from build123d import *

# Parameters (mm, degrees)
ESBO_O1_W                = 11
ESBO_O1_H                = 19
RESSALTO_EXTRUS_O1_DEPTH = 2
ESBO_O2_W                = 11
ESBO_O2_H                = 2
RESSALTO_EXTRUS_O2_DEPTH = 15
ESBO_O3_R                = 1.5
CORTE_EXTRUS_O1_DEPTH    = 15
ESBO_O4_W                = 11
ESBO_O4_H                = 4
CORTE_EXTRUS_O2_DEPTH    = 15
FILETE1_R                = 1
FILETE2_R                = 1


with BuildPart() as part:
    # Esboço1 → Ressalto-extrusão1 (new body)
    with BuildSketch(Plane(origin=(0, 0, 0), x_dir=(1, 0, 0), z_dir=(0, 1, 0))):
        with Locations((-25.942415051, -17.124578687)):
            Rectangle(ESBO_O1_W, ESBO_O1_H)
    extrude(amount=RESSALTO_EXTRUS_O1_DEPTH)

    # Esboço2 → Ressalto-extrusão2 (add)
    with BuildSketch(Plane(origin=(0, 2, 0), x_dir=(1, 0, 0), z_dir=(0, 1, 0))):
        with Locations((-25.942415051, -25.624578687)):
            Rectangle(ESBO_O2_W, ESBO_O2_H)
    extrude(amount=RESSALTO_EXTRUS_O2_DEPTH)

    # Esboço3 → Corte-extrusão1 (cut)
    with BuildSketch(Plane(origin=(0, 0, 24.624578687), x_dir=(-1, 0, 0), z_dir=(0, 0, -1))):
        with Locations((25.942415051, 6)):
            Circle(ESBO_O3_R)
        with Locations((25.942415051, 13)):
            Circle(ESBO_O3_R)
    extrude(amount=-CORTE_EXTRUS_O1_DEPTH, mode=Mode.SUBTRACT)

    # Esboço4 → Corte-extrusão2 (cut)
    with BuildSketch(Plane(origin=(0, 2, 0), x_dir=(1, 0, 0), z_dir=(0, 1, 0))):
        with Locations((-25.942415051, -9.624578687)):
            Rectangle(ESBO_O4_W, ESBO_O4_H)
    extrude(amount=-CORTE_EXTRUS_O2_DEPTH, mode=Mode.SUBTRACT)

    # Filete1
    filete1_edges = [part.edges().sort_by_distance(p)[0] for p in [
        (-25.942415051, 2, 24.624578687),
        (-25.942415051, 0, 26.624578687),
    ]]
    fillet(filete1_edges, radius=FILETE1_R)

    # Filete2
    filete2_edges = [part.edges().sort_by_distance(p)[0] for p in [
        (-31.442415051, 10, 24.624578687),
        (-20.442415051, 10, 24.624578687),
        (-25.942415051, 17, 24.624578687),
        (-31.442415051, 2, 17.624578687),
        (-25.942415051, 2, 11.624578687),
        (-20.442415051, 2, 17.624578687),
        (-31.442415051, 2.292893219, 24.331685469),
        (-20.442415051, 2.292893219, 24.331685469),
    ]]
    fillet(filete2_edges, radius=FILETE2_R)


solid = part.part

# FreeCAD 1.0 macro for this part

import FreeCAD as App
import Part
import Sketcher

V = App.Vector


def edges_at(feature, points):
    """Names of the edges that pass closest to the given points."""
    edges = feature.Shape.Edges
    near = lambda p: min(range(len(edges)), key=lambda i: edges[i].distToShape(Part.Vertex(*p))[0])
    return sorted({f"Edge{near(p) + 1}" for p in points})

doc = App.newDocument("Part")
body = doc.addObject("PartDesign::Body", "Body")

# Sketch on XZ plane
sketch1 = body.newObject("Sketcher::SketchObject", "Sketch")
sketch1.AttachmentSupport = (doc.getObject("XZ_Plane"), [""])
sketch1.MapMode = "FlatFace"
sketch1.addGeometry([
    Part.LineSegment(V(-31, 8, 0), V(-31, 27, 0)),
    Part.LineSegment(V(-31, 27, 0), V(-20, 27, 0)),
    Part.LineSegment(V(-20, 27, 0), V(-20, 8, 0)),
    Part.LineSegment(V(-20, 8, 0), V(-31, 8, 0)),
], False)
sketch1.addConstraint([
    Sketcher.Constraint("Coincident", 0, 2, 1, 1),
    Sketcher.Constraint("Coincident", 1, 2, 2, 1),
    Sketcher.Constraint("Coincident", 2, 2, 3, 1),
    Sketcher.Constraint("Coincident", 3, 2, 0, 1),
    Sketcher.Constraint("Vertical", 0),
    Sketcher.Constraint("Horizontal", 1),
    Sketcher.Constraint("Vertical", 2),
    Sketcher.Constraint("Horizontal", 3),
    Sketcher.Constraint("DistanceX", 1, 1, 1, 2, 11.0),
    Sketcher.Constraint("DistanceY", 0, 1, 0, 2, 19.0),
    Sketcher.Constraint("DistanceY", -1, 1, 0, 2, 26.624579),
    Sketcher.Constraint("DistanceX", 0, 2, -1, 1, 31.442415),
])
pad1 = body.newObject("PartDesign::Pad", "Pad")
pad1.Profile = sketch1
pad1.Length = 2
pad1.Reversed = True

# Sketch on XZ plane
sketch2 = body.newObject("Sketcher::SketchObject", "Sketch001")
sketch2.AttachmentSupport = (doc.getObject("XZ_Plane"), [""])
sketch2.MapMode = "FlatFace"
sketch2.AttachmentOffset = App.Placement(V(0, 0, -2), App.Rotation())
sketch2.addGeometry([
    Part.LineSegment(V(-31.4, 24.6, 0), V(-31.4, 26.6, 0)),
    Part.LineSegment(V(-31.4, 26.6, 0), V(-20.4, 26.6, 0)),
    Part.LineSegment(V(-20.4, 26.6, 0), V(-20.4, 24.6, 0)),
    Part.LineSegment(V(-20.4, 24.6, 0), V(-31.4, 24.6, 0)),
], False)
sketch2.addConstraint([
    Sketcher.Constraint("Coincident", 0, 2, 1, 1),
    Sketcher.Constraint("Coincident", 1, 2, 2, 1),
    Sketcher.Constraint("Coincident", 2, 2, 3, 1),
    Sketcher.Constraint("Coincident", 3, 2, 0, 1),
    Sketcher.Constraint("Vertical", 0),
    Sketcher.Constraint("Horizontal", 1),
    Sketcher.Constraint("Vertical", 2),
    Sketcher.Constraint("Horizontal", 3),
    Sketcher.Constraint("DistanceX", 1, 1, 1, 2, 11.0),
    Sketcher.Constraint("DistanceY", 0, 1, 0, 2, 2.0),
    Sketcher.Constraint("DistanceY", -1, 1, 0, 2, 26.624579),
    Sketcher.Constraint("DistanceX", 0, 2, -1, 1, 31.442415),
])
pad2 = body.newObject("PartDesign::Pad", "Pad001")
pad2.Profile = sketch2
pad2.Length = 15
pad2.Reversed = True

# Sketch on XY plane
sketch3 = body.newObject("Sketcher::SketchObject", "Sketch002")
sketch3.AttachmentSupport = (doc.getObject("XY_Plane"), [""])
sketch3.MapMode = "FlatFace"
sketch3.AttachmentOffset = App.Placement(V(0, 0, 24.624579), App.Rotation())
sketch3.addGeometry([
    Part.Circle(V(-25.9, 6, 0), V(0, 0, 1), 1.5),
    Part.Circle(V(-25.9, 13, 0), V(0, 0, 1), 1.5),
], False)
sketch3.addConstraint([
    Sketcher.Constraint("Equal", 0, 1),
    Sketcher.Constraint("Vertical", 0, 3, 1, 3),
    Sketcher.Constraint("Diameter", 0, 3.0),
    Sketcher.Constraint("DistanceY", -1, 1, 0, 3, 6.0),
    Sketcher.Constraint("DistanceY", -1, 1, 1, 3, 13.0),
    Sketcher.Constraint("DistanceX", 0, 3, -1, 1, 25.942415),
])
pocket1 = body.newObject("PartDesign::Pocket", "Pocket")
pocket1.Profile = sketch3
pocket1.Length = 15
pocket1.Reversed = True

# Sketch on XZ plane
sketch4 = body.newObject("Sketcher::SketchObject", "Sketch003")
sketch4.AttachmentSupport = (doc.getObject("XZ_Plane"), [""])
sketch4.MapMode = "FlatFace"
sketch4.AttachmentOffset = App.Placement(V(0, 0, -2), App.Rotation())
sketch4.addGeometry([
    Part.LineSegment(V(-31.4, 7.6, 0), V(-31.4, 11.6, 0)),
    Part.LineSegment(V(-31.4, 11.6, 0), V(-20.4, 11.6, 0)),
    Part.LineSegment(V(-20.4, 11.6, 0), V(-20.4, 7.6, 0)),
    Part.LineSegment(V(-20.4, 7.6, 0), V(-31.4, 7.6, 0)),
], False)
sketch4.addConstraint([
    Sketcher.Constraint("Coincident", 0, 2, 1, 1),
    Sketcher.Constraint("Coincident", 1, 2, 2, 1),
    Sketcher.Constraint("Coincident", 2, 2, 3, 1),
    Sketcher.Constraint("Coincident", 3, 2, 0, 1),
    Sketcher.Constraint("Vertical", 0),
    Sketcher.Constraint("Horizontal", 1),
    Sketcher.Constraint("Vertical", 2),
    Sketcher.Constraint("Horizontal", 3),
    Sketcher.Constraint("DistanceX", 1, 1, 1, 2, 11.0),
    Sketcher.Constraint("DistanceY", 0, 1, 0, 2, 4.0),
    Sketcher.Constraint("DistanceY", -1, 1, 0, 2, 11.624579),
    Sketcher.Constraint("DistanceX", 0, 2, -1, 1, 31.442415),
])
pocket2 = body.newObject("PartDesign::Pocket", "Pocket001")
pocket2.Profile = sketch4
pocket2.Length = 15
pocket2.Reversed = True
doc.recompute()

fillet = body.newObject("PartDesign::Fillet", "Fillet")
fillet.Base = (pocket2, edges_at(pocket2, [(-25.942, 2, 24.625), (-25.942, 0, 26.625)]))
fillet.Radius = 1
doc.recompute()

fillet2 = body.newObject("PartDesign::Fillet", "Fillet001")
fillet2.Base = (fillet, edges_at(fillet, [
    (-31.442, 10, 24.625),
    (-20.442, 10, 24.625),
    (-25.942, 17, 24.625),
    (-31.442, 2, 17.625),
    (-25.942, 2, 11.625),
    (-20.442, 2, 17.625),
    (-31.442, 2.293, 24.332),
    (-20.442, 2.293, 24.332),
]))
fillet2.Radius = 1

doc.recompute()
